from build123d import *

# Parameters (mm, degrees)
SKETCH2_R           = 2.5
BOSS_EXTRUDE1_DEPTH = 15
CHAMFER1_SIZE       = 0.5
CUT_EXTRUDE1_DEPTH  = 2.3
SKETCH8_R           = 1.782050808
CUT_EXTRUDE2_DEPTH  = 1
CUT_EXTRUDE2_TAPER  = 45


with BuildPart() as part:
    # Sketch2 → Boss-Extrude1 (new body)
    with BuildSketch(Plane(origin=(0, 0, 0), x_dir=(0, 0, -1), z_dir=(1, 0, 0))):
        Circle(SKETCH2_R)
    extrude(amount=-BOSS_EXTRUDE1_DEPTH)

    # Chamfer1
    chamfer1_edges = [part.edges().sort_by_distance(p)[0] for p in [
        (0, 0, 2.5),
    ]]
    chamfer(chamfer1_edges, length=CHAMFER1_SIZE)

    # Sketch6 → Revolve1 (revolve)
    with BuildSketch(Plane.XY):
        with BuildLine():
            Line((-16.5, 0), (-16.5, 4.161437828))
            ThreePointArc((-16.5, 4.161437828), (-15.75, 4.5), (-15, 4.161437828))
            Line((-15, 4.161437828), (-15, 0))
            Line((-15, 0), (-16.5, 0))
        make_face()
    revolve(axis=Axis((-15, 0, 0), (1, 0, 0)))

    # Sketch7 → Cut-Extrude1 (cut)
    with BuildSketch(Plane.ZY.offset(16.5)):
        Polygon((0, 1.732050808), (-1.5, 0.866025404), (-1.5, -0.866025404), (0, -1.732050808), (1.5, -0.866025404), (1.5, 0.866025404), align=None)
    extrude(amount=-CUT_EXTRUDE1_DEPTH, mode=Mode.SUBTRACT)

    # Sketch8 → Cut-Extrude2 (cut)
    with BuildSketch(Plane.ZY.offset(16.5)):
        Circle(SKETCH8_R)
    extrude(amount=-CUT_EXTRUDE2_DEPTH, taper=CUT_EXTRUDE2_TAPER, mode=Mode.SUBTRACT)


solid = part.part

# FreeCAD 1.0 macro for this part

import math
import FreeCAD as App
import Part
import Sketcher
from FreeCAD import Vector
Q = App.Units.Quantity


def edges_at(feature, points):
    """Names of the edges that pass closest to the given points."""
    edges = feature.Shape.Edges
    near = lambda p: min(range(len(edges)), key=lambda i: edges[i].distToShape(Part.Vertex(*p))[0])
    return sorted({f"Edge{near(p) + 1}" for p in points})

doc = App.newDocument("Part")
body = doc.addObject("PartDesign::Body", "Body")

# Sketch on YZ plane
sketch1 = body.newObject("Sketcher::SketchObject", "Sketch")
sketch1.AttachmentSupport = (doc.getObject("YZ_Plane"), [""])
sketch1.MapMode = "FlatFace"
sketch1.addGeometry(Part.Circle(Vector(0, 0, 0), Vector(0, 0, 1), 2.5), False)
sketch1.addConstraint(Sketcher.Constraint("Coincident", 0, 3, -1, 1))
sketch1.addConstraint(Sketcher.Constraint("Diameter", 0, 5.0))
pad1 = body.newObject("PartDesign::Pad", "Pad")
pad1.Profile = sketch1
pad1.Length = 15
pad1.Reversed = True
doc.recompute()

chamfer = body.newObject("PartDesign::Chamfer", "Chamfer")
chamfer.Base = (pad1, edges_at(pad1, [(0, 0, 2.5)]))
chamfer.Size = 0.5

# Sketch on XY plane
sketch2 = body.newObject("Sketcher::SketchObject", "Sketch001")
sketch2.AttachmentSupport = (doc.getObject("XY_Plane"), [""])
sketch2.MapMode = "FlatFace"
sketch2.addGeometry(Part.LineSegment(Vector(-16.5, 4.2, 0), Vector(-16.5, 0, 0)), False)
sketch2.addGeometry(Part.LineSegment(Vector(-16.5, 0, 0), Vector(-15, 0, 0)), False)
sketch2.addGeometry(Part.LineSegment(Vector(-15, 0, 0), Vector(-15, 4.2, 0)), False)
sketch2.addGeometry(Part.ArcOfCircle(Part.Circle(Vector(-15.8, 3.5, 0), Vector(0, 0, 1), 1), math.radians(41), math.radians(139)), False)
sketch2.addConstraint(Sketcher.Constraint("Coincident", 0, 2, 1, 1))
sketch2.addConstraint(Sketcher.Constraint("Coincident", 1, 2, 2, 1))
sketch2.addConstraint(Sketcher.Constraint("Coincident", 2, 2, 3, 1))
sketch2.addConstraint(Sketcher.Constraint("Coincident", 3, 2, 0, 1))
sketch2.addConstraint(Sketcher.Constraint("Vertical", 0))
sketch2.addConstraint(Sketcher.Constraint("Horizontal", 1))
sketch2.addConstraint(Sketcher.Constraint("Vertical", 2))
sketch2.addConstraint(Sketcher.Constraint("PointOnObject", 0, 2, -1))
sketch2.addConstraint(Sketcher.Constraint("Horizontal", 2, 2, 3, 2))
sketch2.addConstraint(Sketcher.Constraint("Radius", 3, 1.0))
sketch2.addConstraint(Sketcher.Constraint("DistanceX", 1, 1, 1, 2, 1.5))
sketch2.addConstraint(Sketcher.Constraint("DistanceX", 1, 2, -1, 1, 15.0))
sketch2.addConstraint(Sketcher.Constraint("DistanceY", -1, 1, 3, 3, 3.5))
revolution = body.newObject("PartDesign::Revolution", "Revolution")
revolution.Profile = sketch2
revolution.ReferenceAxis = (sketch2, ["H_Axis"])
revolution.Angle = 360

# Sketch on YZ plane
sketch3 = body.newObject("Sketcher::SketchObject", "Sketch002")
sketch3.AttachmentSupport = (doc.getObject("YZ_Plane"), [""])
sketch3.MapMode = "FlatFace"
sketch3.AttachmentOffset = App.Placement(Vector(0, 0, -16.5), App.Rotation())
sketch3.addGeometry(Part.LineSegment(Vector(1.7, 0, 0), Vector(0.9, -1.5, 0)), False)
sketch3.addGeometry(Part.LineSegment(Vector(0.9, -1.5, 0), Vector(-0.9, -1.5, 0)), False)
sketch3.addGeometry(Part.LineSegment(Vector(-0.9, -1.5, 0), Vector(-1.7, 0, 0)), False)
sketch3.addGeometry(Part.LineSegment(Vector(-1.7, 0, 0), Vector(-0.9, 1.5, 0)), False)
sketch3.addGeometry(Part.LineSegment(Vector(-0.9, 1.5, 0), Vector(0.9, 1.5, 0)), False)
sketch3.addGeometry(Part.LineSegment(Vector(0.9, 1.5, 0), Vector(1.7, 0, 0)), False)
sketch3.addConstraint(Sketcher.Constraint("Coincident", 0, 2, 1, 1))
sketch3.addConstraint(Sketcher.Constraint("Coincident", 1, 2, 2, 1))
sketch3.addConstraint(Sketcher.Constraint("Coincident", 2, 2, 3, 1))
sketch3.addConstraint(Sketcher.Constraint("Coincident", 3, 2, 4, 1))
sketch3.addConstraint(Sketcher.Constraint("Coincident", 4, 2, 5, 1))
sketch3.addConstraint(Sketcher.Constraint("Coincident", 5, 2, 0, 1))
sketch3.addConstraint(Sketcher.Constraint("Horizontal", 1))
sketch3.addConstraint(Sketcher.Constraint("Horizontal", 4))
sketch3.addConstraint(Sketcher.Constraint("Symmetric", 0, 2, 3, 2, -1, 1))
sketch3.addConstraint(Sketcher.Constraint("Symmetric", 2, 2, 5, 2, -1, 1))
sketch3.addConstraint(Sketcher.Constraint("PointOnObject", 2, 2, -1))
sketch3.addConstraint(Sketcher.Constraint("Parallel", 2, 5))
sketch3.addConstraint(Sketcher.Constraint("Vertical", 1, 2, 3, 2))
sketch3.addConstraint(Sketcher.Constraint("Angle", 0, Q("-120 deg")))
sketch3.addConstraint(Sketcher.Constraint("DistanceY", 1, 2, 3, 2, 3.0))
sketch3.addConstraint(Sketcher.Constraint("DistanceX", 1, 2, 1, 1, 1.732051))
pocket1 = body.newObject("PartDesign::Pocket", "Pocket")
pocket1.Profile = sketch3
pocket1.Length = 2.3
pocket1.Reversed = True

# Sketch on YZ plane
sketch4 = body.newObject("Sketcher::SketchObject", "Sketch003")
sketch4.AttachmentSupport = (doc.getObject("YZ_Plane"), [""])
sketch4.MapMode = "FlatFace"
sketch4.AttachmentOffset = App.Placement(Vector(0, 0, -16.5), App.Rotation())
sketch4.addGeometry(Part.Circle(Vector(0, 0, 0), Vector(0, 0, 1), 1.8), False)
sketch4.addConstraint(Sketcher.Constraint("Coincident", 0, 3, -1, 1))
sketch4.addConstraint(Sketcher.Constraint("Diameter", 0, 3.564102))
pocket2 = body.newObject("PartDesign::Pocket", "Pocket001")
pocket2.Profile = sketch4
pocket2.Length = 1
pocket2.Reversed = True
pocket2.TaperAngle = -45

doc.recompute()
